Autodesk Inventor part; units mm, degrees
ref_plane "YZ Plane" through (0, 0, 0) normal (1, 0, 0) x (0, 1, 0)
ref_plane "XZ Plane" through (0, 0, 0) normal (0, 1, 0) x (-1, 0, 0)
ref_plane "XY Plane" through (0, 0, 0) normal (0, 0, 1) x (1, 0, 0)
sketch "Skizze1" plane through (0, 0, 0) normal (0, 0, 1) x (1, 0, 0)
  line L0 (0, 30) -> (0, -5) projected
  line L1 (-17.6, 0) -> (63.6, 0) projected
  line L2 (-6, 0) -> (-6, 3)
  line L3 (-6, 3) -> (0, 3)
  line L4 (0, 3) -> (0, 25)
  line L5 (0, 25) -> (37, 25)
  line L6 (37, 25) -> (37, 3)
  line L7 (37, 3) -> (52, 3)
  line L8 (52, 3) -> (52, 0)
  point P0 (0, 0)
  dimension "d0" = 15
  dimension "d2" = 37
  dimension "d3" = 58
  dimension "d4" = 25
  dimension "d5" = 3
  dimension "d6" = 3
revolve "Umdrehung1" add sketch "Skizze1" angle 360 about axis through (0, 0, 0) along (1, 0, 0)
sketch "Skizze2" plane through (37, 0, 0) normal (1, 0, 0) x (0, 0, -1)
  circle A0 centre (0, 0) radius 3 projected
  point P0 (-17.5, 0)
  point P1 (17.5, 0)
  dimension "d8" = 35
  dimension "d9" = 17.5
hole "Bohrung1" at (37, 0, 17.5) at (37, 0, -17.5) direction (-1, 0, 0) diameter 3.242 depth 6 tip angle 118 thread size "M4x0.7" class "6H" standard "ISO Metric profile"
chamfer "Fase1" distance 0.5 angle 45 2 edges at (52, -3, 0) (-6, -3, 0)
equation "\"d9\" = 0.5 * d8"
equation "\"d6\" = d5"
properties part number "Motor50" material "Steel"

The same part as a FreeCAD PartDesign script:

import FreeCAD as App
import Part
import Sketcher


def edges_at(feature, points):
    """Names of the edges that pass closest to the given points."""
    edges = feature.Shape.Edges
    near = lambda p: min(range(len(edges)), key=lambda i: edges[i].distToShape(Part.Vertex(*p))[0])
    return sorted({f"Edge{near(p) + 1}" for p in points})

doc = App.newDocument("Part")
params = doc.addObject("Spreadsheet::Sheet", "Params")
for row, (alias, value) in enumerate([
    ("sketch1_width", "37 mm"),
    ("sketch1_width2", "58 mm"),
    ("sketch1_width3", "15 mm"),
    ("sketch1_height", "3 mm"),
    ("revolution_angle", "360 deg"),
    ("hole_diameter", "3.242 mm"),
    ("hole_depth", "6 mm"),
    ("chamfer_size", "0.5 mm"),
], start=1):
    params.set(f"A{row}", alias)
    params.set(f"B{row}", "=" + value)
    params.setAlias(f"B{row}", alias)

body = doc.addObject("PartDesign::Body", "Body")

# Sketch on XY plane
sketch1 = body.newObject("Sketcher::SketchObject", "Sketch")
sketch1.AttachmentSupport = (doc.getObject("XY_Plane"), [""])
sketch1.MapMode = "FlatFace"
sketch1.addGeometry([
    Part.LineSegment(App.Vector(37, 25, 0), App.Vector(0, 25, 0)),  # 0
    Part.LineSegment(App.Vector(0, 25, 0), App.Vector(0, 3, 0)),  # 1
    Part.LineSegment(App.Vector(0, 3, 0), App.Vector(-6, 3, 0)),  # 2
    Part.LineSegment(App.Vector(-6, 3, 0), App.Vector(-6, 0, 0)),  # 3
    Part.LineSegment(App.Vector(-6, 0, 0), App.Vector(52, 0, 0)),  # 4
    Part.LineSegment(App.Vector(52, 0, 0), App.Vector(52, 3, 0)),  # 5
    Part.LineSegment(App.Vector(52, 3, 0), App.Vector(37, 3, 0)),  # 6
    Part.LineSegment(App.Vector(37, 3, 0), App.Vector(37, 25, 0)),  # 7
], False)
sketch1.addConstraint([
    Sketcher.Constraint("Coincident", 0, 2, 1, 1),
    Sketcher.Constraint("Coincident", 1, 2, 2, 1),
    Sketcher.Constraint("Coincident", 2, 2, 3, 1),
    Sketcher.Constraint("Coincident", 3, 2, 4, 1),
    Sketcher.Constraint("Coincident", 4, 2, 5, 1),
    Sketcher.Constraint("Coincident", 5, 2, 6, 1),
    Sketcher.Constraint("Coincident", 6, 2, 7, 1),
    Sketcher.Constraint("Coincident", 7, 2, 0, 1),
    Sketcher.Constraint("Horizontal", 0),
    Sketcher.Constraint("Vertical", 1),
    Sketcher.Constraint("Horizontal", 2),
    Sketcher.Constraint("Vertical", 3),
    Sketcher.Constraint("Horizontal", 4),
    Sketcher.Constraint("Vertical", 5),
    Sketcher.Constraint("Horizontal", 6),
    Sketcher.Constraint("Vertical", 7),
    Sketcher.Constraint("PointOnObject", 0, 2, -2),
    Sketcher.Constraint("PointOnObject", 3, 2, -1),
    Sketcher.Constraint("Horizontal", 2, 2, 5, 2),
    Sketcher.Constraint("DistanceX", 0, 2, 0, 1, 37.0),
    Sketcher.Constraint("DistanceX", 4, 1, 4, 2, 58.0),
    Sketcher.Constraint("DistanceX", 6, 2, 6, 1, 15.0),
    Sketcher.Constraint("DistanceY", 3, 2, 3, 1, 3.0),
    Sketcher.Constraint("DistanceY", -1, 1, 0, 2, 25.0),
])
sketch1.setExpression("Constraints[19]", "Params.sketch1_width")
sketch1.setExpression("Constraints[20]", "Params.sketch1_width2")
sketch1.setExpression("Constraints[21]", "Params.sketch1_width3")
sketch1.setExpression("Constraints[22]", "Params.sketch1_height")
revolution = body.newObject("PartDesign::Revolution", "Revolution")
revolution.Profile = sketch1
revolution.ReferenceAxis = (sketch1, ["H_Axis"])
revolution.setExpression("Angle", "Params.revolution_angle")

# Sketch on YZ plane
sketch2 = body.newObject("Sketcher::SketchObject", "Sketch001")
sketch2.AttachmentSupport = (doc.getObject("YZ_Plane"), [""])
sketch2.MapMode = "FlatFace"
sketch2.AttachmentOffset = App.Placement(App.Vector(0, 0, 37), App.Rotation())
sketch2.addGeometry([
    Part.Circle(App.Vector(0, 17.5, 0), App.Vector(0, 0, 1), 1.6),
    Part.Circle(App.Vector(0, -17.5, 0), App.Vector(0, 0, 1), 1.6),
], False)
sketch2.addConstraint([
    Sketcher.Constraint("Equal", 0, 1),
    Sketcher.Constraint("Symmetric", 0, 3, 1, 3, -1, 1),
    Sketcher.Constraint("PointOnObject", 0, 3, -2),
    Sketcher.Constraint("Diameter", 0, 3.242),
    Sketcher.Constraint("DistanceY", 1, 3, 0, 3, 35.0),
])
doc.recompute()
hole = body.newObject("PartDesign::Hole", "Hole")
hole.Profile = sketch2
hole.ThreadType = "None"
hole.setExpression("Diameter", "Params.hole_diameter")
hole.DepthType = "Dimension"
hole.setExpression("Depth", "Params.hole_depth")
hole.DrillPoint = "Angled"
hole.DrillPointAngle = 118
doc.recompute()

chamfer = body.newObject("PartDesign::Chamfer", "Chamfer")
chamfer.Base = (hole, edges_at(hole, [(52, -3, 0), (-6, -3, 0)]))
chamfer.setExpression("Size", "Params.chamfer_size")

doc.recompute()
